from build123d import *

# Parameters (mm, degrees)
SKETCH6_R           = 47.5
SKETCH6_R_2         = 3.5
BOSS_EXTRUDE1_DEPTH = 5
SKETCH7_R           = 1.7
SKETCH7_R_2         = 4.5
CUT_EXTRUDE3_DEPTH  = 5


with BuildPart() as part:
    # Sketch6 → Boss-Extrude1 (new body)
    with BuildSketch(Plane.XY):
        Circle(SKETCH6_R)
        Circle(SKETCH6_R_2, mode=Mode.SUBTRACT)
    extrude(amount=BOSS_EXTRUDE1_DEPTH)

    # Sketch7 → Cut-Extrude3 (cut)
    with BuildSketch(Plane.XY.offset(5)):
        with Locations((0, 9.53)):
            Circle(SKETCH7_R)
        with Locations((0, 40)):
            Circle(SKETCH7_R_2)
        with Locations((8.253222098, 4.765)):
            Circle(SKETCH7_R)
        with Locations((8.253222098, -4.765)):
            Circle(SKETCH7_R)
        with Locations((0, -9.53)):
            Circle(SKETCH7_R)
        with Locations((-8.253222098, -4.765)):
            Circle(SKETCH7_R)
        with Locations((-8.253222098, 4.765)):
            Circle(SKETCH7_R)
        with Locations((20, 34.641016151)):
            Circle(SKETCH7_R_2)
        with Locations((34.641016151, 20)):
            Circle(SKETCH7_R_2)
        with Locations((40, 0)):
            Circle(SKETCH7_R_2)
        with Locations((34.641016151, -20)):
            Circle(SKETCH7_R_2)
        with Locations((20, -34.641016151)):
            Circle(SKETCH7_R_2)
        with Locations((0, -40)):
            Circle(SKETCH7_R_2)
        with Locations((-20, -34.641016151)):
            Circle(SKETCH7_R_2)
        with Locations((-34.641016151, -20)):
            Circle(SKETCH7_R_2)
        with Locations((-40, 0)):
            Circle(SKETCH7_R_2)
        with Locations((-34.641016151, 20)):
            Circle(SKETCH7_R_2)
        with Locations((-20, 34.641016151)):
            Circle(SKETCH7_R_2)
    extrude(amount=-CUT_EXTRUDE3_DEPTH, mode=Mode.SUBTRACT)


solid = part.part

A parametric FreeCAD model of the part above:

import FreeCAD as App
import Part
import Sketcher

V = App.Vector
Q = App.Units.Quantity

doc = App.newDocument("Part")
body = doc.addObject("PartDesign::Body", "Body")

# Sketch on XY plane
sketch1 = body.newObject("Sketcher::SketchObject", "Sketch")
sketch1.AttachmentSupport = (doc.getObject("XY_Plane"), [""])
sketch1.MapMode = "FlatFace"
sketch1.addGeometry([
    Part.Circle(V(0, 0, 0), V(0, 0, 1), 47.5),
    Part.Circle(V(0, 0, 0), V(0, 0, 1), 3.5),
], False)
sketch1.addConstraint([
    Sketcher.Constraint("Coincident", 0, 3, -1, 1),
    Sketcher.Constraint("Coincident", 1, 3, -1, 1),
    Sketcher.Constraint("Diameter", 0, Q("95 mm")),
    Sketcher.Constraint("Diameter", 1, Q("7 mm")),
])
pad1 = body.newObject("PartDesign::Pad", "Pad")
pad1.Profile = sketch1
pad1.Length = 5

# Sketch on XY plane
sketch2 = body.newObject("Sketcher::SketchObject", "Sketch001")
sketch2.AttachmentSupport = (doc.getObject("XY_Plane"), [""])
sketch2.MapMode = "FlatFace"
sketch2.AttachmentOffset = App.Placement(V(0, 0, 5), App.Rotation())
sketch2.addGeometry([
    Part.Circle(V(0, 9.5, 0), V(0, 0, 1), 1.7),  # 0
    Part.Circle(V(0, 40, 0), V(0, 0, 1), 4.5),  # 1
    Part.Circle(V(8.3, 4.8, 0), V(0, 0, 1), 1.7),  # 2
    Part.Circle(V(8.3, -4.8, 0), V(0, 0, 1), 1.7),  # 3
    Part.Circle(V(0, -9.5, 0), V(0, 0, 1), 1.7),  # 4
    Part.Circle(V(-8.3, -4.8, 0), V(0, 0, 1), 1.7),  # 5
    Part.Circle(V(-8.3, 4.8, 0), V(0, 0, 1), 1.7),  # 6
    Part.Circle(V(20, 34.6, 0), V(0, 0, 1), 4.5),  # 7
    Part.Circle(V(34.6, 20, 0), V(0, 0, 1), 4.5),  # 8
    Part.Circle(V(40, 0, 0), V(0, 0, 1), 4.5),  # 9
    Part.Circle(V(34.6, -20, 0), V(0, 0, 1), 4.5),  # 10
    Part.Circle(V(20, -34.6, 0), V(0, 0, 1), 4.5),  # 11
    Part.Circle(V(0, -40, 0), V(0, 0, 1), 4.5),  # 12
    Part.Circle(V(-20, -34.6, 0), V(0, 0, 1), 4.5),  # 13
    Part.Circle(V(-34.6, -20, 0), V(0, 0, 1), 4.5),  # 14
    Part.Circle(V(-40, 0, 0), V(0, 0, 1), 4.5),  # 15
    Part.Circle(V(-34.6, 20, 0), V(0, 0, 1), 4.5),  # 16
    Part.Circle(V(-20, 34.6, 0), V(0, 0, 1), 4.5),  # 17
], False)
sketch2.addConstraint([
    Sketcher.Constraint("Equal", 0, 2),
    Sketcher.Constraint("Equal", 2, 3),
    Sketcher.Constraint("Equal", 3, 4),
    Sketcher.Constraint("Equal", 4, 5),
    Sketcher.Constraint("Equal", 5, 6),
    Sketcher.Constraint("Equal", 1, 7),
    Sketcher.Constraint("Equal", 7, 8),
    Sketcher.Constraint("Equal", 8, 9),
    Sketcher.Constraint("Equal", 9, 10),
    Sketcher.Constraint("Equal", 10, 11),
    Sketcher.Constraint("Equal", 11, 12),
    Sketcher.Constraint("Equal", 12, 13),
    Sketcher.Constraint("Equal", 13, 14),
    Sketcher.Constraint("Equal", 14, 15),
    Sketcher.Constraint("Equal", 15, 16),
    Sketcher.Constraint("Equal", 16, 17),
    Sketcher.Constraint("Symmetric", 0, 3, 4, 3, -1, 1),
    Sketcher.Constraint("Symmetric", 2, 3, 5, 3, -1, 1),
    Sketcher.Constraint("Symmetric", 3, 3, 6, 3, -1, 1),
    Sketcher.Constraint("Symmetric", 1, 3, 12, 3, -1, 1),
    Sketcher.Constraint("Symmetric", 7, 3, 13, 3, -1, 1),
    Sketcher.Constraint("Symmetric", 8, 3, 14, 3, -1, 1),
    Sketcher.Constraint("Symmetric", 9, 3, 15, 3, -1, 1),
    Sketcher.Constraint("Symmetric", 10, 3, 16, 3, -1, 1),
    Sketcher.Constraint("Symmetric", 11, 3, 17, 3, -1, 1),
    Sketcher.Constraint("Symmetric", 3, 3, 5, 3, -2),
    Sketcher.Constraint("Symmetric", 11, 3, 13, 3, -2),
    Sketcher.Constraint("Symmetric", 10, 3, 14, 3, -2),
    Sketcher.Constraint("PointOnObject", 0, 3, -2),
    Sketcher.Constraint("PointOnObject", 1, 3, -2),
    Sketcher.Constraint("PointOnObject", 9, 3, -1),
    Sketcher.Constraint("Diameter", 1, Q("9 mm")),
    Sketcher.Constraint("Diameter", 0, Q("3.4 mm")),
    Sketcher.Constraint("DistanceY", -1, 1, 1, 3, Q("40 mm")),
    Sketcher.Constraint("DistanceX", -1, 1, 7, 3, Q("20 mm")),
    Sketcher.Constraint("DistanceY", -1, 1, 8, 3, Q("20 mm")),
    Sketcher.Constraint("DistanceX", -1, 1, 9, 3, Q("40 mm")),
    Sketcher.Constraint("DistanceY", -1, 1, 0, 3, Q("9.53 mm")),
    Sketcher.Constraint("DistanceY", 3, 3, 2, 3, Q("9.53 mm")),
    Sketcher.Constraint("DistanceX", -1, 1, 2, 3, Q("8.253222 mm")),
    Sketcher.Constraint("DistanceY", -1, 1, 7, 3, Q("34.641016 mm")),
    Sketcher.Constraint("DistanceX", -1, 1, 8, 3, Q("34.641016 mm")),
])
pocket1 = body.newObject("PartDesign::Pocket", "Pocket")
pocket1.Profile = sketch2
pocket1.Length = 5

doc.recompute()
